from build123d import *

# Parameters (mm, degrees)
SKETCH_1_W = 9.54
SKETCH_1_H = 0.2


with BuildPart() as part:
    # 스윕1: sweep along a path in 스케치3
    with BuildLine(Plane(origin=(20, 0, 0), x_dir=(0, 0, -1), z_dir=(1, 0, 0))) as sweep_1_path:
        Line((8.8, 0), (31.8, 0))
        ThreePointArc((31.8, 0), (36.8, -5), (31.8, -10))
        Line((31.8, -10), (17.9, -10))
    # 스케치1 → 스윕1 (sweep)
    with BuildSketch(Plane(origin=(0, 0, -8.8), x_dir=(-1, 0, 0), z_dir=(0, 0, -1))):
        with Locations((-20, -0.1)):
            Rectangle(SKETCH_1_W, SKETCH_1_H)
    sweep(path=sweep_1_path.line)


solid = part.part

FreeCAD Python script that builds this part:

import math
import FreeCAD as App
import Part
import Sketcher
from FreeCAD import Vector

doc = App.newDocument("Part")
body = doc.addObject("PartDesign::Body", "Body")

# Sketch on XY plane
sketch1 = body.newObject("Sketcher::SketchObject", "Sketch")
sketch1.AttachmentSupport = (doc.getObject("XY_Plane"), [""])
sketch1.MapMode = "FlatFace"
sketch1.AttachmentOffset = App.Placement(Vector(0, 0, -8.8), App.Rotation())
sketch1.addGeometry(Part.LineSegment(Vector(24.77, 0, 0), Vector(24.77, -0.2, 0)), False)
sketch1.addGeometry(Part.LineSegment(Vector(24.77, -0.2, 0), Vector(15.23, -0.2, 0)), False)
sketch1.addGeometry(Part.LineSegment(Vector(15.23, -0.2, 0), Vector(15.23, 0, 0)), False)
sketch1.addGeometry(Part.LineSegment(Vector(15.23, 0, 0), Vector(24.77, 0, 0)), False)
sketch1.addConstraint(Sketcher.Constraint("Coincident", 0, 2, 1, 1))
sketch1.addConstraint(Sketcher.Constraint("Coincident", 1, 2, 2, 1))
sketch1.addConstraint(Sketcher.Constraint("Coincident", 2, 2, 3, 1))
sketch1.addConstraint(Sketcher.Constraint("Coincident", 3, 2, 0, 1))
sketch1.addConstraint(Sketcher.Constraint("Vertical", 0))
sketch1.addConstraint(Sketcher.Constraint("Horizontal", 1))
sketch1.addConstraint(Sketcher.Constraint("Vertical", 2))
sketch1.addConstraint(Sketcher.Constraint("Horizontal", 3))
sketch1.addConstraint(Sketcher.Constraint("PointOnObject", 2, 2, -1))
sketch1.addConstraint(Sketcher.Constraint("DistanceY", 0, 2, 0, 1, 0.2))
sketch1.addConstraint(Sketcher.Constraint("DistanceX", 1, 2, 1, 1, 9.54))
sketch1.addConstraint(Sketcher.Constraint("DistanceX", -1, 1, 0, 2, 24.77))

# Sketch on YZ plane
sketch2 = body.newObject("Sketcher::SketchObject", "Sketch001")
sketch2.AttachmentSupport = (doc.getObject("YZ_Plane"), [""])
sketch2.MapMode = "FlatFace"
sketch2.AttachmentOffset = App.Placement(Vector(0, 0, 20), App.Rotation())
sketch2.addGeometry(Part.LineSegment(Vector(0, -9, 0), Vector(0, -32, 0)), False)
sketch2.addGeometry(Part.ArcOfCircle(Part.Circle(Vector(-5, -32, 0), Vector(0, 0, 1), 5), math.radians(180), math.radians(360)), False)
sketch2.addGeometry(Part.LineSegment(Vector(-10, -32, 0), Vector(-10, -18, 0)), False)
sketch2.addConstraint(Sketcher.Constraint("Tangent", 0, 2, 1, 2))
sketch2.addConstraint(Sketcher.Constraint("Tangent", 1, 1, 2, 1))
sketch2.addConstraint(Sketcher.Constraint("Vertical", 0))
sketch2.addConstraint(Sketcher.Constraint("Vertical", 2))
sketch2.addConstraint(Sketcher.Constraint("PointOnObject", 0, 1, -2))
sketch2.addConstraint(Sketcher.Constraint("Radius", 1, 5.0))
sketch2.addConstraint(Sketcher.Constraint("DistanceY", 0, 2, 0, 1, 23.0))
sketch2.addConstraint(Sketcher.Constraint("DistanceY", 2, 1, 2, 2, 13.9))
sketch2.addConstraint(Sketcher.Constraint("DistanceY", 1, 3, -1, 1, 31.8))
doc.recompute()

additivepipe = body.newObject("PartDesign::AdditivePipe", "AdditivePipe")
additivepipe.Profile = sketch1
additivepipe.Spine = (sketch2, ["Edge1", "Edge2", "Edge3"])

doc.recompute()
